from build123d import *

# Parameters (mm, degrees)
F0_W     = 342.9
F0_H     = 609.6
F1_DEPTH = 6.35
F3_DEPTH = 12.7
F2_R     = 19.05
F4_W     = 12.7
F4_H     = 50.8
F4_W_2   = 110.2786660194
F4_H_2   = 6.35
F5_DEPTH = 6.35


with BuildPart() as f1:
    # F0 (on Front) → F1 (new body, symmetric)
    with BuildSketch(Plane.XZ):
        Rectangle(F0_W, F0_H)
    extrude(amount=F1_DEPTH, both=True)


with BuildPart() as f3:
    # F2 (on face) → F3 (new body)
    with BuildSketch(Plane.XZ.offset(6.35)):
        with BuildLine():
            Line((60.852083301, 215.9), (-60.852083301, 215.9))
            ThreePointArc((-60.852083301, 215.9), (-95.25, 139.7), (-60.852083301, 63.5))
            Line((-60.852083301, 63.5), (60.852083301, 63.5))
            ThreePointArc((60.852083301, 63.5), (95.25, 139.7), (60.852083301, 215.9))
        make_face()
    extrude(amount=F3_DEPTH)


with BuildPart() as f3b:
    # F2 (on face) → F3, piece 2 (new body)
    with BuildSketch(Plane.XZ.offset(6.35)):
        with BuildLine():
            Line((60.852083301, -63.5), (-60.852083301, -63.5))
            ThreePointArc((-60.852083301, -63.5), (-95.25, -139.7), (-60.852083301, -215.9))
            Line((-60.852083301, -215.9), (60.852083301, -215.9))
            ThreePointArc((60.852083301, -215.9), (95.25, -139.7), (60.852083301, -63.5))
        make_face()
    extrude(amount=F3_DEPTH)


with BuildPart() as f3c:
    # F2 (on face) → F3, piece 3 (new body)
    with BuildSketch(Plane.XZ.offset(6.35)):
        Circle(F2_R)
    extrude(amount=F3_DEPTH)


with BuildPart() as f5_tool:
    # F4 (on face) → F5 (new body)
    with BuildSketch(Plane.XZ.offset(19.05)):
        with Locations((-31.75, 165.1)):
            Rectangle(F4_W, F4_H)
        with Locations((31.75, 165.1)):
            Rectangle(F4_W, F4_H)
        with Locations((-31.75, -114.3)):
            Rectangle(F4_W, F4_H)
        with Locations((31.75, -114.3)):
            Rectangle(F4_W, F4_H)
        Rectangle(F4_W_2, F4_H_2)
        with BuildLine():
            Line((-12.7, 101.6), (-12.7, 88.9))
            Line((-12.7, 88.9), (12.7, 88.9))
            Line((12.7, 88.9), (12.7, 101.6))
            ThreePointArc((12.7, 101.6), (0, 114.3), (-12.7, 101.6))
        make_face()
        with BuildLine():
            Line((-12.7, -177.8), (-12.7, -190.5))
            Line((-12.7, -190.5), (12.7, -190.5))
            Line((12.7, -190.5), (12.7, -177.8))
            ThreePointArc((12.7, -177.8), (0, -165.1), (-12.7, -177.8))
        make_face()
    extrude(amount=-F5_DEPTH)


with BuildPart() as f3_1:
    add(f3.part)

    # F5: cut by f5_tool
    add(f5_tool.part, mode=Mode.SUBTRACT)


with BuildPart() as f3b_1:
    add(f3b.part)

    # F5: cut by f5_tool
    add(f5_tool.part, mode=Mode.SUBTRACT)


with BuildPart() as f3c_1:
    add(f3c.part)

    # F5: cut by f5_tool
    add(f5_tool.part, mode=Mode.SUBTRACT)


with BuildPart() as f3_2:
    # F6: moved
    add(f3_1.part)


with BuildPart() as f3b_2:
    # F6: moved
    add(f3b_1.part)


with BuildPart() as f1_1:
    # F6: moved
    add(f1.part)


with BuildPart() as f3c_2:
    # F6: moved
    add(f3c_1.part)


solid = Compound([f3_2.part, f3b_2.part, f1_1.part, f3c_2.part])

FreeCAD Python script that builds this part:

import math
import FreeCAD as App
import Part
import Sketcher
Q = App.Units.Quantity

doc = App.newDocument("Part")
body = doc.addObject("PartDesign::Body", "Body")

# Sketch on XZ plane
sketch1 = body.newObject("Sketcher::SketchObject", "Sketch")
sketch1.AttachmentSupport = (doc.getObject("XZ_Plane"), [""])
sketch1.MapMode = "FlatFace"
sketch1.addGeometry(Part.LineSegment(App.Vector(-171, 305, 0), App.Vector(-171, -305, 0)), False)
sketch1.addGeometry(Part.LineSegment(App.Vector(-171, -305, 0), App.Vector(171, -305, 0)), False)
sketch1.addGeometry(Part.LineSegment(App.Vector(171, -305, 0), App.Vector(171, 305, 0)), False)
sketch1.addGeometry(Part.LineSegment(App.Vector(171, 305, 0), App.Vector(-171, 305, 0)), False)
sketch1.addConstraint(Sketcher.Constraint("Coincident", 0, 2, 1, 1))
sketch1.addConstraint(Sketcher.Constraint("Coincident", 1, 2, 2, 1))
sketch1.addConstraint(Sketcher.Constraint("Coincident", 2, 2, 3, 1))
sketch1.addConstraint(Sketcher.Constraint("Coincident", 3, 2, 0, 1))
sketch1.addConstraint(Sketcher.Constraint("Vertical", 0))
sketch1.addConstraint(Sketcher.Constraint("Horizontal", 1))
sketch1.addConstraint(Sketcher.Constraint("Vertical", 2))
sketch1.addConstraint(Sketcher.Constraint("Horizontal", 3))
sketch1.addConstraint(Sketcher.Constraint("Symmetric", 0, 2, 2, 2, -1, 1))
sketch1.addConstraint(Sketcher.Constraint("DistanceY", 0, 2, 0, 1, Q("24 in")))
sketch1.addConstraint(Sketcher.Constraint("DistanceX", 1, 1, 1, 2, Q("13.5 in")))
pad1 = body.newObject("PartDesign::Pad", "Pad")
pad1.Profile = sketch1
pad1.Length = Q("0.5 in")
pad1.Midplane = True
body2 = doc.addObject("PartDesign::Body", "Body001")

# Sketch on XZ plane
sketch2 = body2.newObject("Sketcher::SketchObject", "Sketch001")
sketch2.AttachmentSupport = (doc.getObject("XZ_Plane001"), [""])
sketch2.MapMode = "FlatFace"
sketch2.AttachmentOffset = App.Placement(App.Vector(0, 0, 0.25 * 25.4), App.Rotation())
sketch2.addGeometry(Part.LineSegment(App.Vector(61, 216, 0), App.Vector(-61, 216, 0)), False)
sketch2.addGeometry(Part.ArcOfCircle(Part.Circle(App.Vector(6, 140, 0), App.Vector(0, 0, 1), 102), math.radians(131), math.radians(229)), False)
sketch2.addGeometry(Part.LineSegment(App.Vector(-61, 64, 0), App.Vector(61, 64, 0)), False)
sketch2.addGeometry(Part.ArcOfCircle(Part.Circle(App.Vector(-6, 140, 0), App.Vector(0, 0, 1), 102), math.radians(-49), math.radians(49)), False)
sketch2.addConstraint(Sketcher.Constraint("Coincident", 0, 2, 1, 1))
sketch2.addConstraint(Sketcher.Constraint("Coincident", 1, 2, 2, 1))
sketch2.addConstraint(Sketcher.Constraint("Coincident", 2, 2, 3, 1))
sketch2.addConstraint(Sketcher.Constraint("Coincident", 3, 2, 0, 1))
sketch2.addConstraint(Sketcher.Constraint("Horizontal", 0))
sketch2.addConstraint(Sketcher.Constraint("Horizontal", 2))
sketch2.addConstraint(Sketcher.Constraint("Equal", 1, 3))
sketch2.addConstraint(Sketcher.Constraint("Symmetric", 1, 3, 3, 3, -2))
sketch2.addConstraint(Sketcher.Constraint("Vertical", 0, 2, 1, 2))
sketch2.addConstraint(Sketcher.Constraint("Radius", 1, Q("4 in")))
sketch2.addConstraint(Sketcher.Constraint("DistanceY", 3, 3, 0, 2, Q("3 in")))
sketch2.addConstraint(Sketcher.Constraint("DistanceY", -1, 1, 1, 3, Q("5.5 in")))
sketch2.addConstraint(Sketcher.Constraint("DistanceX", 3, 3, 1, 3, Q("0.5 in")))
pad2 = body2.newObject("PartDesign::Pad", "Pad001")
pad2.Profile = sketch2
pad2.Length = Q("0.5 in")
body3 = doc.addObject("PartDesign::Body", "Body002")

# Sketch on XZ plane
sketch3 = body3.newObject("Sketcher::SketchObject", "Sketch002")
sketch3.AttachmentSupport = (doc.getObject("XZ_Plane002"), [""])
sketch3.MapMode = "FlatFace"
sketch3.AttachmentOffset = App.Placement(App.Vector(0, 0, 0.25 * 25.4), App.Rotation())
sketch3.addGeometry(Part.LineSegment(App.Vector(61, -64, 0), App.Vector(-61, -64, 0)), False)
sketch3.addGeometry(Part.ArcOfCircle(Part.Circle(App.Vector(6, -140, 0), App.Vector(0, 0, 1), 102), math.radians(131), math.radians(229)), False)
sketch3.addGeometry(Part.LineSegment(App.Vector(-61, -216, 0), App.Vector(61, -216, 0)), False)
sketch3.addGeometry(Part.ArcOfCircle(Part.Circle(App.Vector(-6, -140, 0), App.Vector(0, 0, 1), 102), math.radians(-49), math.radians(49)), False)
sketch3.addConstraint(Sketcher.Constraint("Coincident", 0, 2, 1, 1))
sketch3.addConstraint(Sketcher.Constraint("Coincident", 1, 2, 2, 1))
sketch3.addConstraint(Sketcher.Constraint("Coincident", 2, 2, 3, 1))
sketch3.addConstraint(Sketcher.Constraint("Coincident", 3, 2, 0, 1))
sketch3.addConstraint(Sketcher.Constraint("Horizontal", 0))
sketch3.addConstraint(Sketcher.Constraint("Horizontal", 2))
sketch3.addConstraint(Sketcher.Constraint("Equal", 1, 3))
sketch3.addConstraint(Sketcher.Constraint("Symmetric", 1, 3, 3, 3, -2))
sketch3.addConstraint(Sketcher.Constraint("Vertical", 0, 2, 1, 2))
sketch3.addConstraint(Sketcher.Constraint("Radius", 1, Q("4 in")))
sketch3.addConstraint(Sketcher.Constraint("DistanceY", 3, 3, 0, 2, Q("3 in")))
sketch3.addConstraint(Sketcher.Constraint("DistanceY", 1, 3, -1, 1, Q("5.5 in")))
sketch3.addConstraint(Sketcher.Constraint("DistanceX", 3, 3, 1, 3, Q("0.5 in")))
pad3 = body3.newObject("PartDesign::Pad", "Pad002")
pad3.Profile = sketch3
pad3.Length = Q("0.5 in")
body4 = doc.addObject("PartDesign::Body", "Body003")

# Sketch on XZ plane
sketch4 = body4.newObject("Sketcher::SketchObject", "Sketch003")
sketch4.AttachmentSupport = (doc.getObject("XZ_Plane003"), [""])
sketch4.MapMode = "FlatFace"
sketch4.AttachmentOffset = App.Placement(App.Vector(0, 0, 0.25 * 25.4), App.Rotation())
sketch4.addGeometry(Part.Circle(App.Vector(0, 0, 0), App.Vector(0, 0, 1), 19), False)
sketch4.addConstraint(Sketcher.Constraint("Coincident", 0, 3, -1, 1))
sketch4.addConstraint(Sketcher.Constraint("Diameter", 0, Q("1.5 in")))
pad4 = body4.newObject("PartDesign::Pad", "Pad003")
pad4.Profile = sketch4
pad4.Length = Q("0.5 in")
body5 = doc.addObject("PartDesign::Body", "Body004")
body5.AllowCompound = True

# Sketch on XZ plane
sketch5 = body5.newObject("Sketcher::SketchObject", "Sketch004")
sketch5.AttachmentSupport = (doc.getObject("XZ_Plane004"), [""])
sketch5.MapMode = "FlatFace"
sketch5.AttachmentOffset = App.Placement(App.Vector(0, 0, 0.75 * 25.4), App.Rotation())
sketch5.addGeometry(Part.LineSegment(App.Vector(-38, 190, 0), App.Vector(-38, 140, 0)), False)
sketch5.addGeometry(Part.LineSegment(App.Vector(-38, 140, 0), App.Vector(-25, 140, 0)), False)
sketch5.addGeometry(Part.LineSegment(App.Vector(-25, 140, 0), App.Vector(-25, 190, 0)), False)
sketch5.addGeometry(Part.LineSegment(App.Vector(-25, 190, 0), App.Vector(-38, 190, 0)), False)
sketch5.addGeometry(Part.LineSegment(App.Vector(25, 190, 0), App.Vector(25, 140, 0)), False)
sketch5.addGeometry(Part.LineSegment(App.Vector(25, 140, 0), App.Vector(38, 140, 0)), False)
sketch5.addGeometry(Part.LineSegment(App.Vector(38, 140, 0), App.Vector(38, 190, 0)), False)
sketch5.addGeometry(Part.LineSegment(App.Vector(38, 190, 0), App.Vector(25, 190, 0)), False)
sketch5.addGeometry(Part.LineSegment(App.Vector(-38, -89, 0), App.Vector(-38, -140, 0)), False)
sketch5.addGeometry(Part.LineSegment(App.Vector(-38, -140, 0), App.Vector(-25, -140, 0)), False)
sketch5.addGeometry(Part.LineSegment(App.Vector(-25, -140, 0), App.Vector(-25, -89, 0)), False)
sketch5.addGeometry(Part.LineSegment(App.Vector(-25, -89, 0), App.Vector(-38, -89, 0)), False)
sketch5.addGeometry(Part.LineSegment(App.Vector(25, -89, 0), App.Vector(25, -140, 0)), False)
sketch5.addGeometry(Part.LineSegment(App.Vector(25, -140, 0), App.Vector(38, -140, 0)), False)
sketch5.addGeometry(Part.LineSegment(App.Vector(38, -140, 0), App.Vector(38, -89, 0)), False)
sketch5.addGeometry(Part.LineSegment(App.Vector(38, -89, 0), App.Vector(25, -89, 0)), False)
sketch5.addGeometry(Part.LineSegment(App.Vector(-55, 3, 0), App.Vector(-55, -3, 0)), False)
sketch5.addGeometry(Part.LineSegment(App.Vector(-55, -3, 0), App.Vector(55, -3, 0)), False)
sketch5.addGeometry(Part.LineSegment(App.Vector(55, -3, 0), App.Vector(55, 3, 0)), False)
sketch5.addGeometry(Part.LineSegment(App.Vector(55, 3, 0), App.Vector(-55, 3, 0)), False)
sketch5.addGeometry(Part.LineSegment(App.Vector(-13, 102, 0), App.Vector(-13, 89, 0)), False)
sketch5.addGeometry(Part.LineSegment(App.Vector(-13, 89, 0), App.Vector(13, 89, 0)), False)
sketch5.addGeometry(Part.LineSegment(App.Vector(13, 89, 0), App.Vector(13, 102, 0)), False)
sketch5.addGeometry(Part.ArcOfCircle(Part.Circle(App.Vector(0, 102, 0), App.Vector(0, 0, 1), 13), math.radians(0), math.radians(180)), False)
sketch5.addGeometry(Part.LineSegment(App.Vector(-13, -178, 0), App.Vector(-13, -190, 0)), False)
sketch5.addGeometry(Part.LineSegment(App.Vector(-13, -190, 0), App.Vector(13, -190, 0)), False)
sketch5.addGeometry(Part.LineSegment(App.Vector(13, -190, 0), App.Vector(13, -178, 0)), False)
sketch5.addGeometry(Part.ArcOfCircle(Part.Circle(App.Vector(0, -178, 0), App.Vector(0, 0, 1), 13), math.radians(0), math.radians(180)), False)
sketch5.addConstraint(Sketcher.Constraint("Coincident", 0, 2, 1, 1))
sketch5.addConstraint(Sketcher.Constraint("Coincident", 1, 2, 2, 1))
sketch5.addConstraint(Sketcher.Constraint("Coincident", 2, 2, 3, 1))
sketch5.addConstraint(Sketcher.Constraint("Coincident", 3, 2, 0, 1))
sketch5.addConstraint(Sketcher.Constraint("Coincident", 4, 2, 5, 1))
sketch5.addConstraint(Sketcher.Constraint("Coincident", 5, 2, 6, 1))
sketch5.addConstraint(Sketcher.Constraint("Coincident", 6, 2, 7, 1))
sketch5.addConstraint(Sketcher.Constraint("Coincident", 7, 2, 4, 1))
sketch5.addConstraint(Sketcher.Constraint("Coincident", 8, 2, 9, 1))
sketch5.addConstraint(Sketcher.Constraint("Coincident", 9, 2, 10, 1))
sketch5.addConstraint(Sketcher.Constraint("Coincident", 10, 2, 11, 1))
sketch5.addConstraint(Sketcher.Constraint("Coincident", 11, 2, 8, 1))
sketch5.addConstraint(Sketcher.Constraint("Coincident", 12, 2, 13, 1))
sketch5.addConstraint(Sketcher.Constraint("Coincident", 13, 2, 14, 1))
sketch5.addConstraint(Sketcher.Constraint("Coincident", 14, 2, 15, 1))
sketch5.addConstraint(Sketcher.Constraint("Coincident", 15, 2, 12, 1))
sketch5.addConstraint(Sketcher.Constraint("Coincident", 16, 2, 17, 1))
sketch5.addConstraint(Sketcher.Constraint("Coincident", 17, 2, 18, 1))
sketch5.addConstraint(Sketcher.Constraint("Coincident", 18, 2, 19, 1))
sketch5.addConstraint(Sketcher.Constraint("Coincident", 19, 2, 16, 1))
sketch5.addConstraint(Sketcher.Constraint("Coincident", 20, 2, 21, 1))
sketch5.addConstraint(Sketcher.Constraint("Coincident", 21, 2, 22, 1))
sketch5.addConstraint(Sketcher.Constraint("Tangent", 22, 2, 23, 1))
sketch5.addConstraint(Sketcher.Constraint("Tangent", 23, 2, 20, 1))
sketch5.addConstraint(Sketcher.Constraint("Coincident", 24, 2, 25, 1))
sketch5.addConstraint(Sketcher.Constraint("Coincident", 25, 2, 26, 1))
sketch5.addConstraint(Sketcher.Constraint("Tangent", 26, 2, 27, 1))
sketch5.addConstraint(Sketcher.Constraint("Tangent", 27, 2, 24, 1))
sketch5.addConstraint(Sketcher.Constraint("Vertical", 0))
sketch5.addConstraint(Sketcher.Constraint("Horizontal", 1))
sketch5.addConstraint(Sketcher.Constraint("Vertical", 2))
sketch5.addConstraint(Sketcher.Constraint("Horizontal", 3))
sketch5.addConstraint(Sketcher.Constraint("Vertical", 4))
sketch5.addConstraint(Sketcher.Constraint("Horizontal", 5))
sketch5.addConstraint(Sketcher.Constraint("Vertical", 6))
sketch5.addConstraint(Sketcher.Constraint("Horizontal", 7))
sketch5.addConstraint(Sketcher.Constraint("Vertical", 8))
sketch5.addConstraint(Sketcher.Constraint("Horizontal", 9))
sketch5.addConstraint(Sketcher.Constraint("Vertical", 10))
sketch5.addConstraint(Sketcher.Constraint("Horizontal", 11))
sketch5.addConstraint(Sketcher.Constraint("Vertical", 12))
sketch5.addConstraint(Sketcher.Constraint("Horizontal", 13))
sketch5.addConstraint(Sketcher.Constraint("Vertical", 14))
sketch5.addConstraint(Sketcher.Constraint("Horizontal", 15))
sketch5.addConstraint(Sketcher.Constraint("Vertical", 16))
sketch5.addConstraint(Sketcher.Constraint("Horizontal", 17))
sketch5.addConstraint(Sketcher.Constraint("Vertical", 18))
sketch5.addConstraint(Sketcher.Constraint("Horizontal", 19))
sketch5.addConstraint(Sketcher.Constraint("Vertical", 20))
sketch5.addConstraint(Sketcher.Constraint("Horizontal", 21))
sketch5.addConstraint(Sketcher.Constraint("Vertical", 22))
sketch5.addConstraint(Sketcher.Constraint("Vertical", 24))
sketch5.addConstraint(Sketcher.Constraint("Horizontal", 25))
sketch5.addConstraint(Sketcher.Constraint("Vertical", 26))
sketch5.addConstraint(Sketcher.Constraint("Equal", 23, 27))
sketch5.addConstraint(Sketcher.Constraint("Symmetric", 5, 2, 8, 2, -1, 1))
sketch5.addConstraint(Sketcher.Constraint("Symmetric", 1, 2, 12, 2, -1, 1))
sketch5.addConstraint(Sketcher.Constraint("Symmetric", 16, 2, 18, 2, -1, 1))
sketch5.addConstraint(Sketcher.Constraint("Symmetric", 1, 2, 4, 2, -2))
sketch5.addConstraint(Sketcher.Constraint("Symmetric", 3, 2, 6, 2, -2))
sketch5.addConstraint(Sketcher.Constraint("Symmetric", 11, 2, 14, 2, -2))
sketch5.addConstraint(Sketcher.Constraint("PointOnObject", 23, 3, -2))
sketch5.addConstraint(Sketcher.Constraint("PointOnObject", 27, 3, -2))
sketch5.addConstraint(Sketcher.Constraint("Vertical", 2, 2, 9, 2))
sketch5.addConstraint(Sketcher.Constraint("Equal", 6, 8))
sketch5.addConstraint(Sketcher.Constraint("Equal", 15, 20))
sketch5.addConstraint(Sketcher.Constraint("Equal", 22, 24))
sketch5.addConstraint(Sketcher.Constraint("Radius", 23, Q("0.5 in")))
sketch5.addConstraint(Sketcher.Constraint("DistanceY", 0, 2, 0, 1, Q("2 in")))
sketch5.addConstraint(Sketcher.Constraint("DistanceX", 1, 1, 1, 2, Q("0.5 in")))
sketch5.addConstraint(Sketcher.Constraint("DistanceY", -1, 1, 23, 3, Q("4 in")))
sketch5.addConstraint(Sketcher.Constraint("DistanceY", 27, 3, -1, 1, Q("7 in")))
sketch5.addConstraint(Sketcher.Constraint("DistanceX", 1, 2, -1, 1, Q("1 in")))
sketch5.addConstraint(Sketcher.Constraint("DistanceY", 8, 2, 0, 2, Q("11 in")))
sketch5.addConstraint(Sketcher.Constraint("DistanceY", 16, 2, 16, 1, Q("0.25 in")))
sketch5.addConstraint(Sketcher.Constraint("DistanceX", 17, 1, 17, 2, 110.278666))
pad5 = body5.newObject("PartDesign::Pad", "Pad004")
pad5.Profile = sketch5
pad5.Length = Q("0.25 in")
pad5.Reversed = True
doc.recompute()

body6 = doc.addObject("PartDesign::Body", "Body005")
body6.BaseFeature = body5
boolean = body2.newObject("PartDesign::Boolean", "Boolean")
boolean.Type = "Cut"
boolean.addObjects([body6])
doc.recompute()

body7 = doc.addObject("PartDesign::Body", "Body006")
body7.BaseFeature = body5
boolean2 = body3.newObject("PartDesign::Boolean", "Boolean001")
boolean2.Type = "Cut"
boolean2.addObjects([body7])
doc.recompute()

boolean3 = body4.newObject("PartDesign::Boolean", "Boolean002")
boolean3.Type = "Cut"
boolean3.addObjects([body5])

doc.recompute()
